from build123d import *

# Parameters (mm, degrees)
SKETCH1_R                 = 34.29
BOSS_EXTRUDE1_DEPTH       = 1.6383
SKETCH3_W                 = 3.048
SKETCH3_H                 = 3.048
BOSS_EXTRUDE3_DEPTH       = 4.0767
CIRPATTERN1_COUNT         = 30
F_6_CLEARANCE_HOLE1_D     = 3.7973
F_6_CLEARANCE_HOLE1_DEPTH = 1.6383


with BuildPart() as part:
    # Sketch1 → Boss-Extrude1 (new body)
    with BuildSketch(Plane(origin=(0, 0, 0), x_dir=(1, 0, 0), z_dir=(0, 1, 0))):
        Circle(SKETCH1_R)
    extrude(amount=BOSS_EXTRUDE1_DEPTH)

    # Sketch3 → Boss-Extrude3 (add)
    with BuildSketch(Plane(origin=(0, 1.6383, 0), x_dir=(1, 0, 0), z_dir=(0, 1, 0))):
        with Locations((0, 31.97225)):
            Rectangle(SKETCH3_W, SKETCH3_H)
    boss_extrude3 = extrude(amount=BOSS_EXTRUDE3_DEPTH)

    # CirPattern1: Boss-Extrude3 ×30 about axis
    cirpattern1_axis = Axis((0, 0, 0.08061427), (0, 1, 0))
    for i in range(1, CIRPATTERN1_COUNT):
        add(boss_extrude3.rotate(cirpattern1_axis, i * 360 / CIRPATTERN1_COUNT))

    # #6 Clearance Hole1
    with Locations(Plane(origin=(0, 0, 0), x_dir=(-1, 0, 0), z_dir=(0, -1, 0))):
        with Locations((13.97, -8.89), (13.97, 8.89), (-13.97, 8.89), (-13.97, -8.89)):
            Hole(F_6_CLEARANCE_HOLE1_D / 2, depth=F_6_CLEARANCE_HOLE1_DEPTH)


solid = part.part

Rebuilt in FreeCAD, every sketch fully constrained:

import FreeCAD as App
import Part
import Sketcher
Q = App.Units.Quantity


def add_polygon(sketch, points):
    """Adds a closed chain of lines whose ends are joined by coincident constraints."""
    first, n = sketch.GeometryCount, len(points)
    for a, b in zip(points, points[1:] + points[:1]):
        sketch.addGeometry(Part.LineSegment(App.Vector(*a, 0), App.Vector(*b, 0)), False)
    for i in range(n):
        sketch.addConstraint(Sketcher.Constraint("Coincident", first + i, 2, first + (i + 1) % n, 1))

doc = App.newDocument("Part")
body = doc.addObject("PartDesign::Body", "Body")

# Sketch on XZ plane
sketch1 = body.newObject("Sketcher::SketchObject", "Sketch")
sketch1.AttachmentSupport = (doc.getObject("XZ_Plane"), [""])
sketch1.MapMode = "FlatFace"
sketch1.addGeometry(Part.Circle(App.Vector(0, 0, 0), App.Vector(0, 0, 1), 34), False)
sketch1.addConstraint([
    Sketcher.Constraint("Coincident", 0, 3, -1, 1),
    Sketcher.Constraint("Diameter", 0, Q("2.7 in")),
])
pad1 = body.newObject("PartDesign::Pad", "Pad")
pad1.Profile = sketch1
pad1.Length = Q("0.0645 in")
pad1.Reversed = True

# Sketch on XZ plane
sketch2 = body.newObject("Sketcher::SketchObject", "Sketch001")
sketch2.AttachmentSupport = (doc.getObject("XZ_Plane"), [""])
sketch2.MapMode = "FlatFace"
sketch2.AttachmentOffset = App.Placement(App.Vector(0, 0, -0.0645 * 25.4), App.Rotation())
add_polygon(sketch2, [(-1.5, -33.5), (-1.5, -30.4), (1.5, -30.4), (1.5, -33.5)])  # lines 0-3
sketch2.addConstraint([
    Sketcher.Constraint("Vertical", 0),
    Sketcher.Constraint("Horizontal", 1),
    Sketcher.Constraint("Vertical", 2),
    Sketcher.Constraint("Horizontal", 3),
    Sketcher.Constraint("Equal", 3, 0),
    Sketcher.Constraint("DistanceX", 1, 1, 1, 2, Q("0.12 in")),
    Sketcher.Constraint("DistanceX", 0, 2, -1, 1, Q("0.06 in")),
    Sketcher.Constraint("DistanceY", 0, 2, -1, 1, Q("30.44825 mm")),
])
pad2 = body.newObject("PartDesign::Pad", "Pad001")
pad2.Profile = sketch2
pad2.Length = Q("0.1605 in")
pad2.Reversed = True
doc.recompute()

datumline = body.newObject("PartDesign::Line", "DatumLine")
datumline.Placement = App.Placement(App.Vector(0, 0, 0.080614), App.Rotation(App.Vector(0, 0, 1), App.Vector(0, 1, 0)))
polarpattern = body.newObject("PartDesign::PolarPattern", "PolarPattern")
polarpattern.Originals = [pad2]
polarpattern.Axis = (datumline, [""])
polarpattern.Angle = 360
polarpattern.Occurrences = 30
body.Tip = polarpattern

# Sketch on XZ plane
sketch3 = body.newObject("Sketcher::SketchObject", "Sketch002")
sketch3.AttachmentSupport = (doc.getObject("XZ_Plane"), [""])
sketch3.MapMode = "FlatFace"
sketch3.addGeometry([
    Part.Circle(App.Vector(-14, 8.9, 0), App.Vector(0, 0, 1), 1.9),
    Part.Circle(App.Vector(-14, -8.9, 0), App.Vector(0, 0, 1), 1.9),
    Part.Circle(App.Vector(14, -8.9, 0), App.Vector(0, 0, 1), 1.9),
    Part.Circle(App.Vector(14, 8.9, 0), App.Vector(0, 0, 1), 1.9),
], False)
sketch3.addConstraint([
    Sketcher.Constraint("Equal", 0, 1),
    Sketcher.Constraint("Equal", 1, 2),
    Sketcher.Constraint("Equal", 2, 3),
    Sketcher.Constraint("Symmetric", 0, 3, 2, 3, -1, 1),
    Sketcher.Constraint("Symmetric", 1, 3, 3, 3, -1, 1),
    Sketcher.Constraint("Symmetric", 1, 3, 2, 3, -2),
    Sketcher.Constraint("Diameter", 0, Q("0.1495 in")),
    Sketcher.Constraint("DistanceY", 1, 3, 0, 3, Q("0.7 in")),
    Sketcher.Constraint("DistanceX", 1, 3, 2, 3, Q("1.1 in")),
])
doc.recompute()
hole = body.newObject("PartDesign::Hole", "Hole")
hole.Profile = sketch3
hole.ThreadType = "None"
hole.Diameter = Q("0.1495 in")
hole.DepthType = "Dimension"
hole.Depth = Q("0.0645 in")
hole.DrillPoint = "Flat"

doc.recompute()
